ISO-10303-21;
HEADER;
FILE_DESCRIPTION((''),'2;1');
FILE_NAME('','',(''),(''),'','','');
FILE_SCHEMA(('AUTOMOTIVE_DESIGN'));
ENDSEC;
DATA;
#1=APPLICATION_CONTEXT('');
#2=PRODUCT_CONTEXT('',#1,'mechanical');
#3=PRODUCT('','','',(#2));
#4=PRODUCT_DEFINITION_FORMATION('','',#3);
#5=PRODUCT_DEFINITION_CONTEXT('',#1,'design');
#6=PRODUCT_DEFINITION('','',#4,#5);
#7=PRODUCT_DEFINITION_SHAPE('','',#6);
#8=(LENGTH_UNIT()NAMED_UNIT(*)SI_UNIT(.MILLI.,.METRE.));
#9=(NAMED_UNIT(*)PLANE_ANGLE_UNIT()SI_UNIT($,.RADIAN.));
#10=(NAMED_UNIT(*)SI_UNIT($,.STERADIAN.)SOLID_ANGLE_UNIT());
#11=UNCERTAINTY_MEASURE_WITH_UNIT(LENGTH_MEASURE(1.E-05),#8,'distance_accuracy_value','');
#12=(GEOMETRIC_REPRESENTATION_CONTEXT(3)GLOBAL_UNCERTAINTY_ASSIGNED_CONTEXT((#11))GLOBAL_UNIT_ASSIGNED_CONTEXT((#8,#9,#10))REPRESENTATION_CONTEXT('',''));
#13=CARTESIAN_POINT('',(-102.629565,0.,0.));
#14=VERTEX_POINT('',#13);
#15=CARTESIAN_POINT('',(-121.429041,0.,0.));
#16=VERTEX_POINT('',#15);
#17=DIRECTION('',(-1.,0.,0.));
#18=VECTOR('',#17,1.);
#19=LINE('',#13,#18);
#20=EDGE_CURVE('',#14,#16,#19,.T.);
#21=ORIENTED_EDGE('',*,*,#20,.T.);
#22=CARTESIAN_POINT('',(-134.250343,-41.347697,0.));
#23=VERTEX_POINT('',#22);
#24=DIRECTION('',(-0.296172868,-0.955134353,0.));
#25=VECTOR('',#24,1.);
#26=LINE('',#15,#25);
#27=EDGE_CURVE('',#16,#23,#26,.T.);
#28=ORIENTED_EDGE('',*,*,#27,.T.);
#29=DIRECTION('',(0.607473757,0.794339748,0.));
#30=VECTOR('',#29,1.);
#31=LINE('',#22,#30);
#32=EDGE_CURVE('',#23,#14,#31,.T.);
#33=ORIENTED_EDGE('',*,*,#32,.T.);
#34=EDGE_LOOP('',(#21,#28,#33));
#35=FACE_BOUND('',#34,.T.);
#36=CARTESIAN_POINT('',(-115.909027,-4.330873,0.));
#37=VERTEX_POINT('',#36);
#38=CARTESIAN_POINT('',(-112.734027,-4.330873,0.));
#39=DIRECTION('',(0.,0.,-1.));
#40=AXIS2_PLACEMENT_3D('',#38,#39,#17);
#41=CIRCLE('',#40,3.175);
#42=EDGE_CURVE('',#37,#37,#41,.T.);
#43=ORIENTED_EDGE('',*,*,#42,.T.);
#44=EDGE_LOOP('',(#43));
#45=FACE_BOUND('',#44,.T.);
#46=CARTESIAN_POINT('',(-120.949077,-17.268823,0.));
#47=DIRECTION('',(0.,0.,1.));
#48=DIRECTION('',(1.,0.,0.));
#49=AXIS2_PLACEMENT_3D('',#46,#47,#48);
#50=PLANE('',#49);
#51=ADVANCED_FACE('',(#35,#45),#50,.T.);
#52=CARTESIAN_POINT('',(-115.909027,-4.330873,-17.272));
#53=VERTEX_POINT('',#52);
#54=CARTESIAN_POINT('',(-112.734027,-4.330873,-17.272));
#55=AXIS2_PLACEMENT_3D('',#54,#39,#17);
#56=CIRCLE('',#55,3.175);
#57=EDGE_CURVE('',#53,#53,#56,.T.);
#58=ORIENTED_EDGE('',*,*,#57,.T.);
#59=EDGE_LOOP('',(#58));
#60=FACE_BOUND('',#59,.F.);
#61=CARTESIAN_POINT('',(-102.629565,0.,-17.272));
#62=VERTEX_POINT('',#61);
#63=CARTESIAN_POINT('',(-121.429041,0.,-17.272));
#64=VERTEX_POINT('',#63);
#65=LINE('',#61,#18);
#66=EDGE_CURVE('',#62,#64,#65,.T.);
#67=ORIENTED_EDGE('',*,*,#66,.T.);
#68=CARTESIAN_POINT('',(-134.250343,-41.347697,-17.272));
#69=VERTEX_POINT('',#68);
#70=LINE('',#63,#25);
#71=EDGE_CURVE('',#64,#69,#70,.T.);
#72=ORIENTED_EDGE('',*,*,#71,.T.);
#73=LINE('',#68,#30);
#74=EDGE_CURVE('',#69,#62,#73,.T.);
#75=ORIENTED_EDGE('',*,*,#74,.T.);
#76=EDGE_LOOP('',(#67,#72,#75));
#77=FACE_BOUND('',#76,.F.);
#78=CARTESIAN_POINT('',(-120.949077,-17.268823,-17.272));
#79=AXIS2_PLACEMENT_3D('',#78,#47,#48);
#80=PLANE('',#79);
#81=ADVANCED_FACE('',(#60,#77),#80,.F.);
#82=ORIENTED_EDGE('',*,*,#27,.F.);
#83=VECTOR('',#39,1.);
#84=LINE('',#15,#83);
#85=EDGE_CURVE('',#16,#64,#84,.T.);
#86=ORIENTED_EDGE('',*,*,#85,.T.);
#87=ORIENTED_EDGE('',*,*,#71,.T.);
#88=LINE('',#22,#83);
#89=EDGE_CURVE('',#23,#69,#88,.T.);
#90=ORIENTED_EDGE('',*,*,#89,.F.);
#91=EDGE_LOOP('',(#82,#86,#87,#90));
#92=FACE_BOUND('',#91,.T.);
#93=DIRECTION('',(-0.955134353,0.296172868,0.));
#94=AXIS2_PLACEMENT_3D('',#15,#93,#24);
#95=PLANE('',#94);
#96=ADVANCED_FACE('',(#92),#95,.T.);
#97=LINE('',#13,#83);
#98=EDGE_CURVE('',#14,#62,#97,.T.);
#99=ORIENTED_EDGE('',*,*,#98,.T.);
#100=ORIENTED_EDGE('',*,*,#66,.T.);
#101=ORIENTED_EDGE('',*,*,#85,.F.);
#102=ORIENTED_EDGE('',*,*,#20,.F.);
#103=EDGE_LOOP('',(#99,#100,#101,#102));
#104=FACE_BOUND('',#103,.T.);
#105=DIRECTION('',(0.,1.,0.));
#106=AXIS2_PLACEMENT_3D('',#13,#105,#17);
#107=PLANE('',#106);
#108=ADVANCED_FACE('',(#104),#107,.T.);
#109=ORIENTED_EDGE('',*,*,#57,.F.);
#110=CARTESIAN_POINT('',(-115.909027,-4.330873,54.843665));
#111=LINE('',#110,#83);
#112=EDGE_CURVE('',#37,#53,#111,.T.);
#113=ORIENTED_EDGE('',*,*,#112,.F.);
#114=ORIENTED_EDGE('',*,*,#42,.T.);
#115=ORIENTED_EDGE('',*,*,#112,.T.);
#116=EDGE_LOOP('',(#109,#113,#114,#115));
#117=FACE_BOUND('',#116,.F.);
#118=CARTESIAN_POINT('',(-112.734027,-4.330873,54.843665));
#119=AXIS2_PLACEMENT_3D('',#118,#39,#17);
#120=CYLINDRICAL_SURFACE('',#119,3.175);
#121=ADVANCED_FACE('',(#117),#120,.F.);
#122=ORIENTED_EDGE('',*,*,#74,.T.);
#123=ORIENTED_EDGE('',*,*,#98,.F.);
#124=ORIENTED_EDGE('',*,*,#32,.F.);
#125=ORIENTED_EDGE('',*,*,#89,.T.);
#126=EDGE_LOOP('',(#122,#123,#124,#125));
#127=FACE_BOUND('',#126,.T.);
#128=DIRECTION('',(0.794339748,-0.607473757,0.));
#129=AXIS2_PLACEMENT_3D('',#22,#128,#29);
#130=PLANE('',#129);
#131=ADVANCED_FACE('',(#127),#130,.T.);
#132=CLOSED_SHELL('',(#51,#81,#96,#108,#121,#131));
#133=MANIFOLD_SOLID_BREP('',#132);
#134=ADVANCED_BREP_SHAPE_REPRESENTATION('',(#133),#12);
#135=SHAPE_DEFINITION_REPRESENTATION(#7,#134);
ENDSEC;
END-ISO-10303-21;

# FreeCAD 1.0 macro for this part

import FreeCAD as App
import Part
import Sketcher
Q = App.Units.Quantity


def add_polygon(sketch, points):
    """Adds a closed chain of lines whose ends are joined by coincident constraints."""
    first, n = sketch.GeometryCount, len(points)
    for a, b in zip(points, points[1:] + points[:1]):
        sketch.addGeometry(Part.LineSegment(App.Vector(*a, 0), App.Vector(*b, 0)), False)
    for i in range(n):
        sketch.addConstraint(Sketcher.Constraint("Coincident", first + i, 2, first + (i + 1) % n, 1))

doc = App.newDocument("Part")
body = doc.addObject("PartDesign::Body", "Body")

# Sketch on XY plane
sketch1 = body.newObject("Sketcher::SketchObject", "Sketch")
sketch1.AttachmentSupport = (doc.getObject("XY_Plane"), [""])
sketch1.MapMode = "FlatFace"
add_polygon(sketch1, [(-121, 0), (-134, -41), (-103, 0)])  # lines 0-2
sketch1.addConstraint([
    Sketcher.Constraint("Horizontal", 2),
    Sketcher.Constraint("PointOnObject", 1, 2, -1),
    Sketcher.Constraint("DistanceX", 0, 2, 2, 2, 12.821302),
    Sketcher.Constraint("DistanceX", 2, 2, 2, 1, 18.799476),
    Sketcher.Constraint("DistanceX", 2, 2, -1, 1, 121.429041),
    Sketcher.Constraint("Distance", 0, 43.289928),
])
pad1 = body.newObject("PartDesign::Pad", "Pad")
pad1.Profile = sketch1
pad1.Length = Q("0.68 in")
pad1.Reversed = True

# Sketch on XY plane
sketch2 = body.newObject("Sketcher::SketchObject", "Sketch001")
sketch2.AttachmentSupport = (doc.getObject("XY_Plane"), [""])
sketch2.MapMode = "FlatFace"
sketch2.addGeometry(Part.Circle(App.Vector(-112.7, -4.3, 0), App.Vector(0, 0, 1), 3.2), False)
sketch2.addConstraint([
    Sketcher.Constraint("Diameter", 0, Q("0.25 in")),
    Sketcher.Constraint("DistanceX", 0, 3, -1, 1, 112.734027),
    Sketcher.Constraint("DistanceY", 0, 3, -1, 1, 4.330873),
])
doc.recompute()
hole = body.newObject("PartDesign::Hole", "Hole")
hole.Profile = sketch2
hole.ThreadType = "None"
hole.Diameter = Q("0.25 in")
hole.DepthType = "ThroughAll"

doc.recompute()
